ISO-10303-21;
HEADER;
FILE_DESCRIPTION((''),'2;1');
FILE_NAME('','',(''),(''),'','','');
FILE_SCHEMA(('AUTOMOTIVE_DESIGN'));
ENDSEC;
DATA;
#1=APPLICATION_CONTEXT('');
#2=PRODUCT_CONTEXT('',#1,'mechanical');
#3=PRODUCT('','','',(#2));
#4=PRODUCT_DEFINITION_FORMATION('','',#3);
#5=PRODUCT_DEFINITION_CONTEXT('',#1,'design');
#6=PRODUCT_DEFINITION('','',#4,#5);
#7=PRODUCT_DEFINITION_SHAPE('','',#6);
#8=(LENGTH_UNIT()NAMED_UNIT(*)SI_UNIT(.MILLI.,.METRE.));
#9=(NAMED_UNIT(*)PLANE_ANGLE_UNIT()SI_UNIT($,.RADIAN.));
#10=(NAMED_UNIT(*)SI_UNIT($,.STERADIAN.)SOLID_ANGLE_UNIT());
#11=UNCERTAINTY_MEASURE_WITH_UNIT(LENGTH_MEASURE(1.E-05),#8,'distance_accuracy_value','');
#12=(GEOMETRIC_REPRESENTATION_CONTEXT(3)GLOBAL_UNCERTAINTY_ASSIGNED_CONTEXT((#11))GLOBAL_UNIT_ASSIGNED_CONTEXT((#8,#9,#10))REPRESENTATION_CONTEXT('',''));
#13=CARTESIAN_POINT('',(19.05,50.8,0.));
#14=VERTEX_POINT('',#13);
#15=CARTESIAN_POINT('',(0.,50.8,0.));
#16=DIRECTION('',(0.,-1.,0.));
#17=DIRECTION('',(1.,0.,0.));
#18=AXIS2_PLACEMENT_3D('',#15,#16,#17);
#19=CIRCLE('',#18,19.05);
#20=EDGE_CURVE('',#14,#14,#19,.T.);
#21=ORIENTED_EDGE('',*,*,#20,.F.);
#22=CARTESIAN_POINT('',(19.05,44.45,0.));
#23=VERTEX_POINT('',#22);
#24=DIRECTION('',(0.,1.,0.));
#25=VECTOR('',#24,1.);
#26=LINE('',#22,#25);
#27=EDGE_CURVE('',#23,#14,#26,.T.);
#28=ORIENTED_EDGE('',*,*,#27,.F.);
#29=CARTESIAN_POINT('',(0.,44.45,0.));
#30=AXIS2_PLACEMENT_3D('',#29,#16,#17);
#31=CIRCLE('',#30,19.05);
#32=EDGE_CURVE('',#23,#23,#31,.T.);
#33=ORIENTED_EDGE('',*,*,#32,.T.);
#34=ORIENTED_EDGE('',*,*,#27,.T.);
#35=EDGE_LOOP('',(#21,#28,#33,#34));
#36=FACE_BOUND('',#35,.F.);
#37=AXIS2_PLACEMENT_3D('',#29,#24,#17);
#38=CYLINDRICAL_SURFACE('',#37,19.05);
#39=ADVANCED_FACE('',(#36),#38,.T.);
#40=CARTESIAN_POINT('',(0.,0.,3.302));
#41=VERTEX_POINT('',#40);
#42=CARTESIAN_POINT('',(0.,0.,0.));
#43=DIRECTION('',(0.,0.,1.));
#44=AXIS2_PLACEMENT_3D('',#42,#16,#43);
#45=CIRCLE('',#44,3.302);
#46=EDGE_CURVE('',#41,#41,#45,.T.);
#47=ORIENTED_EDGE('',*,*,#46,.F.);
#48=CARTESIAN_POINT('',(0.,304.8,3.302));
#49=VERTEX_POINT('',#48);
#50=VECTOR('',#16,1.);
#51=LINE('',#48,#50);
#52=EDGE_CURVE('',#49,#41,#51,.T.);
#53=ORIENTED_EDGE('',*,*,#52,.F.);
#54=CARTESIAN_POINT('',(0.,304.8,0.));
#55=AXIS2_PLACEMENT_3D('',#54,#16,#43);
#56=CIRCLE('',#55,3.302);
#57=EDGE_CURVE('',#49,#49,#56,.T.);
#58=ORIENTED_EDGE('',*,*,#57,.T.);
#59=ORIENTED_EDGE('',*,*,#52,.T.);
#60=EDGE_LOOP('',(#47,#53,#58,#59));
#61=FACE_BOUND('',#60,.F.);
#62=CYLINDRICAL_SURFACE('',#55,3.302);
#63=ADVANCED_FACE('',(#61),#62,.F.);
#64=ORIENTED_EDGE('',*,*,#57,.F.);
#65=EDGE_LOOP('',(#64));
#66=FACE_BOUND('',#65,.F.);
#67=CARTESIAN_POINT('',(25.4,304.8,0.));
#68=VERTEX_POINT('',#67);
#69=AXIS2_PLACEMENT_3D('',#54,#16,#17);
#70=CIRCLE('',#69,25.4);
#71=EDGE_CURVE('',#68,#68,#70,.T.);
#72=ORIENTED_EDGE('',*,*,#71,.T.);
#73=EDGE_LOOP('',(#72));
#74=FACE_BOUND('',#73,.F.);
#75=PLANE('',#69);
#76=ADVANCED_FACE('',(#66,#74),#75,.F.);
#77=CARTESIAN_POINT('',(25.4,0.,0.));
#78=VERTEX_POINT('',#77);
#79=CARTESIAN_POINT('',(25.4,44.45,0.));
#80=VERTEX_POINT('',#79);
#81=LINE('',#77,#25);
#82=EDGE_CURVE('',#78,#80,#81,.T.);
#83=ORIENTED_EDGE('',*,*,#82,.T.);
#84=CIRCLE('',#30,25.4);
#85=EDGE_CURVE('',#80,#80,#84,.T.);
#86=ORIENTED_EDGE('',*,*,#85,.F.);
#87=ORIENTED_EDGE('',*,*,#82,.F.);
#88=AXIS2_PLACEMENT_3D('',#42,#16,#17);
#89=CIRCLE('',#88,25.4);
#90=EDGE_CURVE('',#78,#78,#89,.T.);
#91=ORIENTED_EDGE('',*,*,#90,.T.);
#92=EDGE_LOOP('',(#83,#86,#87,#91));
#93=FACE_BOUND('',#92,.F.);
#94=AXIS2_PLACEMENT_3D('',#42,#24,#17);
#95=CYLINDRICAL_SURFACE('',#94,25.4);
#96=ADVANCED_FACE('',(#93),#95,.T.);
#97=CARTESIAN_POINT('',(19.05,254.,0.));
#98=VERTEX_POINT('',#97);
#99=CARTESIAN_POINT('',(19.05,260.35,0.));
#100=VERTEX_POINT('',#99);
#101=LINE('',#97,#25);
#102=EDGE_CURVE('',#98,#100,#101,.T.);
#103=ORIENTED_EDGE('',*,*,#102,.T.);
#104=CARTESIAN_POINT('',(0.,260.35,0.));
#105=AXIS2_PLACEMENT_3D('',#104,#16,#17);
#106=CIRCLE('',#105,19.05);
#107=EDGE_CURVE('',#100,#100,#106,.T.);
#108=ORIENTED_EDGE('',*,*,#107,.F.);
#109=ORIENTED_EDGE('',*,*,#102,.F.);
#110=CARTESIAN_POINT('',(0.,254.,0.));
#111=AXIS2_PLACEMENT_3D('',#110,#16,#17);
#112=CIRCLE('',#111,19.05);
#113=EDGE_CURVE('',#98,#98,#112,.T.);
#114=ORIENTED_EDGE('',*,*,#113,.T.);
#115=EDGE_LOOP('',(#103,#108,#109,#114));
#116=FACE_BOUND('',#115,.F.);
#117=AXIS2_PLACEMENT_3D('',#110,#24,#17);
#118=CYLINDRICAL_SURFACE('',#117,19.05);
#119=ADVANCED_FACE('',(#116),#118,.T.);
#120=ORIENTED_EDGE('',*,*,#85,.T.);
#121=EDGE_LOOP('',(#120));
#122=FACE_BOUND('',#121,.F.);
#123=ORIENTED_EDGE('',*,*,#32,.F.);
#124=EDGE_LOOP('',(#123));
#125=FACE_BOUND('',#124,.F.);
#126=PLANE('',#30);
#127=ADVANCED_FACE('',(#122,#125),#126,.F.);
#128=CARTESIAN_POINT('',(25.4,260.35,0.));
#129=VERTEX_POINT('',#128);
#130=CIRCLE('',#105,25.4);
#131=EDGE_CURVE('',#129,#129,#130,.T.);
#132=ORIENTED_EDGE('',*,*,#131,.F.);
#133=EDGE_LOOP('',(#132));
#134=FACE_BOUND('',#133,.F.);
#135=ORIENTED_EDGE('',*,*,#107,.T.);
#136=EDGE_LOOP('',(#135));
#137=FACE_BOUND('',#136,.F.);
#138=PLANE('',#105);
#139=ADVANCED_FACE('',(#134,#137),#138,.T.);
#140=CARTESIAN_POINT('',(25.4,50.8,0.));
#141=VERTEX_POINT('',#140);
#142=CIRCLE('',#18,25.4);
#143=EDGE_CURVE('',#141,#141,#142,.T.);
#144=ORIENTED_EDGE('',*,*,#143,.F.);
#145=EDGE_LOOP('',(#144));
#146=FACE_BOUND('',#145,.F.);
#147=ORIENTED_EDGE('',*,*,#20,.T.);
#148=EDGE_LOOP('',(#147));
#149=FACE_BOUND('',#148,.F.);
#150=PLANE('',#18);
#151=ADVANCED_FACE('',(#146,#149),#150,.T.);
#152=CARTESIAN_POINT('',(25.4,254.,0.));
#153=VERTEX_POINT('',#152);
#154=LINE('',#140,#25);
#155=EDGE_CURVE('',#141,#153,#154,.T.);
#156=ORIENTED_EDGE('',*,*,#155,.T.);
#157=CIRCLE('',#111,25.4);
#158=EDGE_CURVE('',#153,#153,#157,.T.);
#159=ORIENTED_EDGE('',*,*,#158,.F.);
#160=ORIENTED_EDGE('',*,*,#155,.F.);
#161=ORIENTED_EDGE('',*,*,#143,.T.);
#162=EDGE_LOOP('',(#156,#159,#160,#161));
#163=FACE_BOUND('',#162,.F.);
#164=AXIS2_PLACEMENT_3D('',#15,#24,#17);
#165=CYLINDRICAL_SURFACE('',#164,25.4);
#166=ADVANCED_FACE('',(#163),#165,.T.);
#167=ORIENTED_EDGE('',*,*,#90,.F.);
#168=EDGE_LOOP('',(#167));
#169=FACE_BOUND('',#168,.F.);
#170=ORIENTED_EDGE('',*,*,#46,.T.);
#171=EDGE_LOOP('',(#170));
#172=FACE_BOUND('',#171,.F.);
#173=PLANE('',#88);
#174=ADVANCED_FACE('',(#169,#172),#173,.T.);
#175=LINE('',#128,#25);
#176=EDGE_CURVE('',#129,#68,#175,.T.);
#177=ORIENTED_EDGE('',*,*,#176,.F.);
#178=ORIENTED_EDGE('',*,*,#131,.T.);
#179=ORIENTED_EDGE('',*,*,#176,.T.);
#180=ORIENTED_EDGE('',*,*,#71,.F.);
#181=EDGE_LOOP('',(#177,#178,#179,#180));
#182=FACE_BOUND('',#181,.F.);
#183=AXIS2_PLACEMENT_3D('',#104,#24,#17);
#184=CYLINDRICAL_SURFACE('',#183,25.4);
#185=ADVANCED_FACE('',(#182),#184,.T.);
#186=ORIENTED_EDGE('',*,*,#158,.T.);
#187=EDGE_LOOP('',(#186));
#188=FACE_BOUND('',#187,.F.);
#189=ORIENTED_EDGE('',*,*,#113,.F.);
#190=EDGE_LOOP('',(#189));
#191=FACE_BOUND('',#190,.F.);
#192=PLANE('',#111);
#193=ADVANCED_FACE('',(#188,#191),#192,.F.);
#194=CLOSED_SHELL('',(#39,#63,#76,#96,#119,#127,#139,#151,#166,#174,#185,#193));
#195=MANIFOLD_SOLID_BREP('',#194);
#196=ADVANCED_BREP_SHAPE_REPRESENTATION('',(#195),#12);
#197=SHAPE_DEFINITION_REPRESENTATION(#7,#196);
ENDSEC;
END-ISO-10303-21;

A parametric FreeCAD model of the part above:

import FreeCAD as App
import Part
import Sketcher
Q = App.Units.Quantity

doc = App.newDocument("Part")
params = doc.addObject("Spreadsheet::Sheet", "Params")
for row, (alias, value) in enumerate([
    ("sketch1_width", "1 in"),
    ("sketch1_height", "12 in"),
    ("sketch1_width2", "0.25 in"),
    ("sketch1_height2", "8 in"),
    ("revolution_angle", "360 deg"),
    ("sketch2_diameter", "0.26 in"),
    ("hole_diameter", "0.26 in"),
], start=1):
    params.set(f"A{row}", alias)
    params.set(f"B{row}", "=" + value)
    params.setAlias(f"B{row}", alias)

body = doc.addObject("PartDesign::Body", "Body")

sketch1 = body.newObject("Sketcher::SketchObject", "Sketch")
sketch1.AttachmentSupport = (doc.getObject("XY_Plane"), [""])
sketch1.MapMode = "FlatFace"
sketch1.addGeometry([
    Part.LineSegment(App.Vector(0, 305, 0), App.Vector(0, 0, 0)),
    Part.LineSegment(App.Vector(0, 0, 0), App.Vector(25, 0, 0)),
    Part.LineSegment(App.Vector(25, 0, 0), App.Vector(25, 44, 0)),
    Part.LineSegment(App.Vector(25, 44, 0), App.Vector(19, 44, 0)),
    Part.LineSegment(App.Vector(19, 44, 0), App.Vector(19, 51, 0)),
    Part.LineSegment(App.Vector(19, 51, 0), App.Vector(25, 51, 0)),
    Part.LineSegment(App.Vector(25, 51, 0), App.Vector(25, 254, 0)),
    Part.LineSegment(App.Vector(25, 254, 0), App.Vector(19, 254, 0)),
    Part.LineSegment(App.Vector(19, 254, 0), App.Vector(19, 260, 0)),
    Part.LineSegment(App.Vector(19, 260, 0), App.Vector(25, 260, 0)),
    Part.LineSegment(App.Vector(25, 260, 0), App.Vector(25, 305, 0)),
    Part.LineSegment(App.Vector(25, 305, 0), App.Vector(0, 305, 0)),
], False)
sketch1.addConstraint([
    Sketcher.Constraint("Coincident", 0, 2, 1, 1),
    Sketcher.Constraint("Coincident", 1, 2, 2, 1),
    Sketcher.Constraint("Coincident", 2, 2, 3, 1),
    Sketcher.Constraint("Coincident", 3, 2, 4, 1),
    Sketcher.Constraint("Coincident", 4, 2, 5, 1),
    Sketcher.Constraint("Coincident", 5, 2, 6, 1),
    Sketcher.Constraint("Coincident", 6, 2, 7, 1),
    Sketcher.Constraint("Coincident", 7, 2, 8, 1),
    Sketcher.Constraint("Coincident", 8, 2, 9, 1),
    Sketcher.Constraint("Coincident", 9, 2, 10, 1),
    Sketcher.Constraint("Coincident", 10, 2, 11, 1),
    Sketcher.Constraint("Coincident", 11, 2, 0, 1),
    Sketcher.Constraint("Vertical", 0),
    Sketcher.Constraint("Horizontal", 1),
    Sketcher.Constraint("Vertical", 2),
    Sketcher.Constraint("Horizontal", 3),
    Sketcher.Constraint("Vertical", 4),
    Sketcher.Constraint("Horizontal", 5),
    Sketcher.Constraint("Vertical", 6),
    Sketcher.Constraint("Horizontal", 7),
    Sketcher.Constraint("Vertical", 8),
    Sketcher.Constraint("Horizontal", 9),
    Sketcher.Constraint("Vertical", 10),
    Sketcher.Constraint("Horizontal", 11),
    Sketcher.Constraint("Coincident", 0, 2, -1, 1),
    Sketcher.Constraint("Vertical", 2, 2, 5, 2),
    Sketcher.Constraint("Vertical", 4, 2, 7, 2),
    Sketcher.Constraint("Vertical", 6, 2, 9, 2),
    Sketcher.Constraint("Equal", 9, 4),
    Sketcher.Constraint("Equal", 4, 8),
    Sketcher.Constraint("Equal", 2, 10),
    Sketcher.Constraint("DistanceX", 1, 1, 1, 2, Q("1 in")),
    Sketcher.Constraint("DistanceY", 0, 2, 0, 1, Q("12 in")),
    Sketcher.Constraint("DistanceX", 3, 2, 3, 1, Q("0.25 in")),
    Sketcher.Constraint("DistanceY", 6, 1, 6, 2, Q("8 in")),
])
sketch1.setExpression("Constraints[31]", "Params.sketch1_width")
sketch1.setExpression("Constraints[32]", "Params.sketch1_height")
sketch1.setExpression("Constraints[33]", "Params.sketch1_width2")
sketch1.setExpression("Constraints[34]", "Params.sketch1_height2")
revolution = body.newObject("PartDesign::Revolution", "Revolution")
revolution.Profile = sketch1
revolution.ReferenceAxis = (sketch1, ["V_Axis"])
revolution.setExpression("Angle", "Params.revolution_angle")

sketch2 = body.newObject("Sketcher::SketchObject", "Sketch001")
sketch2.AttachmentSupport = (doc.getObject("XZ_Plane"), [""])
sketch2.MapMode = "FlatFace"
sketch2.AttachmentOffset = App.Placement(App.Vector(0, 0, -12 * 25.4), App.Rotation())
sketch2.addGeometry(Part.Circle(App.Vector(0, 0, 0), App.Vector(0, 0, 1), 3.3), False)
sketch2.addConstraint([
    Sketcher.Constraint("Coincident", 0, 3, -1, 1),
    Sketcher.Constraint("Diameter", 0, Q("0.26 in")),
])
sketch2.setExpression("Constraints[1]", "Params.sketch2_diameter")
doc.recompute()
hole = body.newObject("PartDesign::Hole", "Hole")
hole.Profile = sketch2
hole.ThreadType = "None"
hole.setExpression("Diameter", "Params.hole_diameter")
hole.DepthType = "ThroughAll"
hole.Reversed = True

doc.recompute()
